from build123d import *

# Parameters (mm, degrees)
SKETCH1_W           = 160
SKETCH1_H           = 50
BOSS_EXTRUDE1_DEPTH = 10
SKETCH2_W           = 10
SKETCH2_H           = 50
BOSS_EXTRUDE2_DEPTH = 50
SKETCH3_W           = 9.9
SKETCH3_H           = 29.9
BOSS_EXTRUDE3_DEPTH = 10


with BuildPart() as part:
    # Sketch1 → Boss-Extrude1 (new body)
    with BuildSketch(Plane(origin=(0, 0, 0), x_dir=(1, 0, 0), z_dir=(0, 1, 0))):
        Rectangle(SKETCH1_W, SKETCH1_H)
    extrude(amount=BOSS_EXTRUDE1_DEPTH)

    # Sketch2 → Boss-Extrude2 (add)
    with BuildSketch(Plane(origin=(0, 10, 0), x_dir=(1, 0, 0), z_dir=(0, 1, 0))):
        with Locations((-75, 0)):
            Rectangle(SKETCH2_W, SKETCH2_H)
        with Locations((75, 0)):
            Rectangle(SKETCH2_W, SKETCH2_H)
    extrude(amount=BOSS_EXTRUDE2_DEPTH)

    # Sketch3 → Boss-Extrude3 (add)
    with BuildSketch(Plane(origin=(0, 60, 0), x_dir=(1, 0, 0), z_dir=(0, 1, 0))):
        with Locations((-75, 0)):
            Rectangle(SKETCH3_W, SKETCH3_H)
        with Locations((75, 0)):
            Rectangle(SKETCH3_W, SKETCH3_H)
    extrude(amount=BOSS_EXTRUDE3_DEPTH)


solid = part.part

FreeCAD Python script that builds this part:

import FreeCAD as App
import Part
import Sketcher

V = App.Vector

doc = App.newDocument("Part")
body = doc.addObject("PartDesign::Body", "Body")

sketch1 = body.newObject("Sketcher::SketchObject", "Sketch")
sketch1.AttachmentSupport = (doc.getObject("XZ_Plane"), [""])
sketch1.MapMode = "FlatFace"
sketch1.addGeometry([
    Part.LineSegment(V(-80, -25, 0), V(-80, 25, 0)),
    Part.LineSegment(V(-80, 25, 0), V(80, 25, 0)),
    Part.LineSegment(V(80, 25, 0), V(80, -25, 0)),
    Part.LineSegment(V(80, -25, 0), V(-80, -25, 0)),
], False)
sketch1.addConstraint([
    Sketcher.Constraint("Coincident", 0, 2, 1, 1),
    Sketcher.Constraint("Coincident", 1, 2, 2, 1),
    Sketcher.Constraint("Coincident", 2, 2, 3, 1),
    Sketcher.Constraint("Coincident", 3, 2, 0, 1),
    Sketcher.Constraint("Vertical", 0),
    Sketcher.Constraint("Horizontal", 1),
    Sketcher.Constraint("Vertical", 2),
    Sketcher.Constraint("Horizontal", 3),
    Sketcher.Constraint("Symmetric", 0, 2, 2, 2, -1, 1),
    Sketcher.Constraint("DistanceX", 1, 1, 1, 2, 160.0),
    Sketcher.Constraint("DistanceY", 0, 1, 0, 2, 50.0),
])
pad1 = body.newObject("PartDesign::Pad", "Pad")
pad1.Profile = sketch1
pad1.Length = 10
pad1.Reversed = True

sketch2 = body.newObject("Sketcher::SketchObject", "Sketch001")
sketch2.AttachmentSupport = (doc.getObject("XZ_Plane"), [""])
sketch2.MapMode = "FlatFace"
sketch2.AttachmentOffset = App.Placement(V(0, 0, -10), App.Rotation())
sketch2.addGeometry([
    Part.LineSegment(V(-80, -25, 0), V(-80, 25, 0)),
    Part.LineSegment(V(-80, 25, 0), V(-70, 25, 0)),
    Part.LineSegment(V(-70, 25, 0), V(-70, -25, 0)),
    Part.LineSegment(V(-70, -25, 0), V(-80, -25, 0)),
    Part.LineSegment(V(70, -25, 0), V(70, 25, 0)),
    Part.LineSegment(V(70, 25, 0), V(80, 25, 0)),
    Part.LineSegment(V(80, 25, 0), V(80, -25, 0)),
    Part.LineSegment(V(80, -25, 0), V(70, -25, 0)),
], False)
sketch2.addConstraint([
    Sketcher.Constraint("Coincident", 0, 2, 1, 1),
    Sketcher.Constraint("Coincident", 1, 2, 2, 1),
    Sketcher.Constraint("Coincident", 2, 2, 3, 1),
    Sketcher.Constraint("Coincident", 3, 2, 0, 1),
    Sketcher.Constraint("Coincident", 4, 2, 5, 1),
    Sketcher.Constraint("Coincident", 5, 2, 6, 1),
    Sketcher.Constraint("Coincident", 6, 2, 7, 1),
    Sketcher.Constraint("Coincident", 7, 2, 4, 1),
    Sketcher.Constraint("Vertical", 0),
    Sketcher.Constraint("Horizontal", 1),
    Sketcher.Constraint("Vertical", 2),
    Sketcher.Constraint("Horizontal", 3),
    Sketcher.Constraint("Vertical", 4),
    Sketcher.Constraint("Horizontal", 5),
    Sketcher.Constraint("Vertical", 6),
    Sketcher.Constraint("Horizontal", 7),
    Sketcher.Constraint("Symmetric", 2, 2, 4, 2, -1, 1),
    Sketcher.Constraint("Symmetric", 0, 2, 6, 2, -1, 1),
    Sketcher.Constraint("Horizontal", 1, 2, 4, 2),
    Sketcher.Constraint("DistanceX", 1, 1, 1, 2, 10.0),
    Sketcher.Constraint("DistanceY", 0, 1, 0, 2, 50.0),
    Sketcher.Constraint("DistanceX", 0, 2, -1, 1, 80.0),
])
pad2 = body.newObject("PartDesign::Pad", "Pad001")
pad2.Profile = sketch2
pad2.Length = 50
pad2.Reversed = True

sketch3 = body.newObject("Sketcher::SketchObject", "Sketch002")
sketch3.AttachmentSupport = (doc.getObject("XZ_Plane"), [""])
sketch3.MapMode = "FlatFace"
sketch3.AttachmentOffset = App.Placement(V(0, 0, -60), App.Rotation())
sketch3.addGeometry([
    Part.LineSegment(V(-80, -15, 0), V(-80, 15, 0)),
    Part.LineSegment(V(-80, 15, 0), V(-70, 15, 0)),
    Part.LineSegment(V(-70, 15, 0), V(-70, -15, 0)),
    Part.LineSegment(V(-70, -15, 0), V(-80, -15, 0)),
    Part.LineSegment(V(70, -15, 0), V(70, 15, 0)),
    Part.LineSegment(V(70, 15, 0), V(80, 15, 0)),
    Part.LineSegment(V(80, 15, 0), V(80, -15, 0)),
    Part.LineSegment(V(80, -15, 0), V(70, -15, 0)),
], False)
sketch3.addConstraint([
    Sketcher.Constraint("Coincident", 0, 2, 1, 1),
    Sketcher.Constraint("Coincident", 1, 2, 2, 1),
    Sketcher.Constraint("Coincident", 2, 2, 3, 1),
    Sketcher.Constraint("Coincident", 3, 2, 0, 1),
    Sketcher.Constraint("Coincident", 4, 2, 5, 1),
    Sketcher.Constraint("Coincident", 5, 2, 6, 1),
    Sketcher.Constraint("Coincident", 6, 2, 7, 1),
    Sketcher.Constraint("Coincident", 7, 2, 4, 1),
    Sketcher.Constraint("Vertical", 0),
    Sketcher.Constraint("Horizontal", 1),
    Sketcher.Constraint("Vertical", 2),
    Sketcher.Constraint("Horizontal", 3),
    Sketcher.Constraint("Vertical", 4),
    Sketcher.Constraint("Horizontal", 5),
    Sketcher.Constraint("Vertical", 6),
    Sketcher.Constraint("Horizontal", 7),
    Sketcher.Constraint("Symmetric", 2, 2, 4, 2, -1, 1),
    Sketcher.Constraint("Symmetric", 0, 2, 6, 2, -1, 1),
    Sketcher.Constraint("Horizontal", 1, 2, 4, 2),
    Sketcher.Constraint("DistanceX", 1, 1, 1, 2, 9.9),
    Sketcher.Constraint("DistanceY", 0, 1, 0, 2, 29.9),
    Sketcher.Constraint("DistanceX", 0, 2, 4, 2, 150.0),
])
pad3 = body.newObject("PartDesign::Pad", "Pad002")
pad3.Profile = sketch3
pad3.Length = 10
pad3.Reversed = True

doc.recompute()
